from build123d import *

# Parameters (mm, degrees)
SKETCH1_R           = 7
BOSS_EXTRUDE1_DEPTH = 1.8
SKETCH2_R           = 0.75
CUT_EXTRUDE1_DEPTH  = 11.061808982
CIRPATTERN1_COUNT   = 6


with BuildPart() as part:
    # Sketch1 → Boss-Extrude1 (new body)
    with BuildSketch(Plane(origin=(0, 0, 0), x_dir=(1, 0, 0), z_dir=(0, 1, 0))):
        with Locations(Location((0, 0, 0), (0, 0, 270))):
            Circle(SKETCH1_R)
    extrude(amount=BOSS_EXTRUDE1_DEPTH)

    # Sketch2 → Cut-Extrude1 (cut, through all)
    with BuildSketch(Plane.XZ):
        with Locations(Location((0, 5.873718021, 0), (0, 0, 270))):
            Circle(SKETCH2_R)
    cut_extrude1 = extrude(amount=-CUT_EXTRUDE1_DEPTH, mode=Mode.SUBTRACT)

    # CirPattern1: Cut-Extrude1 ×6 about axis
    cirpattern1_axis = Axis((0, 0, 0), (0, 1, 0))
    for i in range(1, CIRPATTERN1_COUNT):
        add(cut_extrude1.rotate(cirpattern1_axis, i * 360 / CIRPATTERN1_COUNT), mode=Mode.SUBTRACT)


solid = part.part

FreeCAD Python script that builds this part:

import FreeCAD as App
import Part
import Sketcher

V = App.Vector

doc = App.newDocument("Part")
params = doc.addObject("Spreadsheet::Sheet", "Params")
for row, (alias, value) in enumerate([
    ("sketch1_diameter", "14 mm"),
    ("pad1_length", "1.8 mm"),
    ("sketch2_diameter", "1.5 mm"),
], start=1):
    params.set(f"A{row}", alias)
    params.set(f"B{row}", "=" + value)
    params.setAlias(f"B{row}", alias)

body = doc.addObject("PartDesign::Body", "Body")

# Sketch on XZ plane
sketch1 = doc.addObject("Sketcher::SketchObject", "Sketch")
body.addObject(sketch1)
sketch1.AttachmentSupport = (doc.XZ_Plane, [""])
sketch1.MapMode = "FlatFace"
sketch1.addGeometry(Part.Circle(V(0, 0, 0), V(0, 0, 1), 7), False)
sketch1.addConstraint(Sketcher.Constraint("Coincident", 0, 3, -1, 1))
sketch1.addConstraint(Sketcher.Constraint("Diameter", 0, 14.0))
sketch1.setExpression("Constraints[1]", "Params.sketch1_diameter")
pad1 = doc.addObject("PartDesign::Pad", "Pad")
body.addObject(pad1)
pad1.Profile = sketch1
pad1.setExpression("Length", "Params.pad1_length")
pad1.Reversed = True

# Sketch on XZ plane
sketch2 = doc.addObject("Sketcher::SketchObject", "Sketch001")
body.addObject(sketch2)
sketch2.AttachmentSupport = (doc.XZ_Plane, [""])
sketch2.MapMode = "FlatFace"
sketch2.addGeometry(Part.Circle(V(0, 5.9, 0), V(0, 0, 1), 0.8), False)
sketch2.addConstraint(Sketcher.Constraint("PointOnObject", 0, 3, -2))
sketch2.addConstraint(Sketcher.Constraint("Diameter", 0, 1.5))
sketch2.addConstraint(Sketcher.Constraint("DistanceY", -1, 1, 0, 3, 5.873718))
sketch2.setExpression("Constraints[1]", "Params.sketch2_diameter")
pocket1 = doc.addObject("PartDesign::Pocket", "Pocket")
body.addObject(pocket1)
pocket1.Profile = sketch2
pocket1.Type = "ThroughAll"
doc.recompute()

polarpattern = doc.addObject("PartDesign::PolarPattern", "PolarPattern")
body.addObject(polarpattern)
polarpattern.Originals = [pocket1]
polarpattern.Axis = (doc.Y_Axis, [""])
polarpattern.Angle = 360
polarpattern.Occurrences = 6
body.Tip = polarpattern

doc.recompute()
